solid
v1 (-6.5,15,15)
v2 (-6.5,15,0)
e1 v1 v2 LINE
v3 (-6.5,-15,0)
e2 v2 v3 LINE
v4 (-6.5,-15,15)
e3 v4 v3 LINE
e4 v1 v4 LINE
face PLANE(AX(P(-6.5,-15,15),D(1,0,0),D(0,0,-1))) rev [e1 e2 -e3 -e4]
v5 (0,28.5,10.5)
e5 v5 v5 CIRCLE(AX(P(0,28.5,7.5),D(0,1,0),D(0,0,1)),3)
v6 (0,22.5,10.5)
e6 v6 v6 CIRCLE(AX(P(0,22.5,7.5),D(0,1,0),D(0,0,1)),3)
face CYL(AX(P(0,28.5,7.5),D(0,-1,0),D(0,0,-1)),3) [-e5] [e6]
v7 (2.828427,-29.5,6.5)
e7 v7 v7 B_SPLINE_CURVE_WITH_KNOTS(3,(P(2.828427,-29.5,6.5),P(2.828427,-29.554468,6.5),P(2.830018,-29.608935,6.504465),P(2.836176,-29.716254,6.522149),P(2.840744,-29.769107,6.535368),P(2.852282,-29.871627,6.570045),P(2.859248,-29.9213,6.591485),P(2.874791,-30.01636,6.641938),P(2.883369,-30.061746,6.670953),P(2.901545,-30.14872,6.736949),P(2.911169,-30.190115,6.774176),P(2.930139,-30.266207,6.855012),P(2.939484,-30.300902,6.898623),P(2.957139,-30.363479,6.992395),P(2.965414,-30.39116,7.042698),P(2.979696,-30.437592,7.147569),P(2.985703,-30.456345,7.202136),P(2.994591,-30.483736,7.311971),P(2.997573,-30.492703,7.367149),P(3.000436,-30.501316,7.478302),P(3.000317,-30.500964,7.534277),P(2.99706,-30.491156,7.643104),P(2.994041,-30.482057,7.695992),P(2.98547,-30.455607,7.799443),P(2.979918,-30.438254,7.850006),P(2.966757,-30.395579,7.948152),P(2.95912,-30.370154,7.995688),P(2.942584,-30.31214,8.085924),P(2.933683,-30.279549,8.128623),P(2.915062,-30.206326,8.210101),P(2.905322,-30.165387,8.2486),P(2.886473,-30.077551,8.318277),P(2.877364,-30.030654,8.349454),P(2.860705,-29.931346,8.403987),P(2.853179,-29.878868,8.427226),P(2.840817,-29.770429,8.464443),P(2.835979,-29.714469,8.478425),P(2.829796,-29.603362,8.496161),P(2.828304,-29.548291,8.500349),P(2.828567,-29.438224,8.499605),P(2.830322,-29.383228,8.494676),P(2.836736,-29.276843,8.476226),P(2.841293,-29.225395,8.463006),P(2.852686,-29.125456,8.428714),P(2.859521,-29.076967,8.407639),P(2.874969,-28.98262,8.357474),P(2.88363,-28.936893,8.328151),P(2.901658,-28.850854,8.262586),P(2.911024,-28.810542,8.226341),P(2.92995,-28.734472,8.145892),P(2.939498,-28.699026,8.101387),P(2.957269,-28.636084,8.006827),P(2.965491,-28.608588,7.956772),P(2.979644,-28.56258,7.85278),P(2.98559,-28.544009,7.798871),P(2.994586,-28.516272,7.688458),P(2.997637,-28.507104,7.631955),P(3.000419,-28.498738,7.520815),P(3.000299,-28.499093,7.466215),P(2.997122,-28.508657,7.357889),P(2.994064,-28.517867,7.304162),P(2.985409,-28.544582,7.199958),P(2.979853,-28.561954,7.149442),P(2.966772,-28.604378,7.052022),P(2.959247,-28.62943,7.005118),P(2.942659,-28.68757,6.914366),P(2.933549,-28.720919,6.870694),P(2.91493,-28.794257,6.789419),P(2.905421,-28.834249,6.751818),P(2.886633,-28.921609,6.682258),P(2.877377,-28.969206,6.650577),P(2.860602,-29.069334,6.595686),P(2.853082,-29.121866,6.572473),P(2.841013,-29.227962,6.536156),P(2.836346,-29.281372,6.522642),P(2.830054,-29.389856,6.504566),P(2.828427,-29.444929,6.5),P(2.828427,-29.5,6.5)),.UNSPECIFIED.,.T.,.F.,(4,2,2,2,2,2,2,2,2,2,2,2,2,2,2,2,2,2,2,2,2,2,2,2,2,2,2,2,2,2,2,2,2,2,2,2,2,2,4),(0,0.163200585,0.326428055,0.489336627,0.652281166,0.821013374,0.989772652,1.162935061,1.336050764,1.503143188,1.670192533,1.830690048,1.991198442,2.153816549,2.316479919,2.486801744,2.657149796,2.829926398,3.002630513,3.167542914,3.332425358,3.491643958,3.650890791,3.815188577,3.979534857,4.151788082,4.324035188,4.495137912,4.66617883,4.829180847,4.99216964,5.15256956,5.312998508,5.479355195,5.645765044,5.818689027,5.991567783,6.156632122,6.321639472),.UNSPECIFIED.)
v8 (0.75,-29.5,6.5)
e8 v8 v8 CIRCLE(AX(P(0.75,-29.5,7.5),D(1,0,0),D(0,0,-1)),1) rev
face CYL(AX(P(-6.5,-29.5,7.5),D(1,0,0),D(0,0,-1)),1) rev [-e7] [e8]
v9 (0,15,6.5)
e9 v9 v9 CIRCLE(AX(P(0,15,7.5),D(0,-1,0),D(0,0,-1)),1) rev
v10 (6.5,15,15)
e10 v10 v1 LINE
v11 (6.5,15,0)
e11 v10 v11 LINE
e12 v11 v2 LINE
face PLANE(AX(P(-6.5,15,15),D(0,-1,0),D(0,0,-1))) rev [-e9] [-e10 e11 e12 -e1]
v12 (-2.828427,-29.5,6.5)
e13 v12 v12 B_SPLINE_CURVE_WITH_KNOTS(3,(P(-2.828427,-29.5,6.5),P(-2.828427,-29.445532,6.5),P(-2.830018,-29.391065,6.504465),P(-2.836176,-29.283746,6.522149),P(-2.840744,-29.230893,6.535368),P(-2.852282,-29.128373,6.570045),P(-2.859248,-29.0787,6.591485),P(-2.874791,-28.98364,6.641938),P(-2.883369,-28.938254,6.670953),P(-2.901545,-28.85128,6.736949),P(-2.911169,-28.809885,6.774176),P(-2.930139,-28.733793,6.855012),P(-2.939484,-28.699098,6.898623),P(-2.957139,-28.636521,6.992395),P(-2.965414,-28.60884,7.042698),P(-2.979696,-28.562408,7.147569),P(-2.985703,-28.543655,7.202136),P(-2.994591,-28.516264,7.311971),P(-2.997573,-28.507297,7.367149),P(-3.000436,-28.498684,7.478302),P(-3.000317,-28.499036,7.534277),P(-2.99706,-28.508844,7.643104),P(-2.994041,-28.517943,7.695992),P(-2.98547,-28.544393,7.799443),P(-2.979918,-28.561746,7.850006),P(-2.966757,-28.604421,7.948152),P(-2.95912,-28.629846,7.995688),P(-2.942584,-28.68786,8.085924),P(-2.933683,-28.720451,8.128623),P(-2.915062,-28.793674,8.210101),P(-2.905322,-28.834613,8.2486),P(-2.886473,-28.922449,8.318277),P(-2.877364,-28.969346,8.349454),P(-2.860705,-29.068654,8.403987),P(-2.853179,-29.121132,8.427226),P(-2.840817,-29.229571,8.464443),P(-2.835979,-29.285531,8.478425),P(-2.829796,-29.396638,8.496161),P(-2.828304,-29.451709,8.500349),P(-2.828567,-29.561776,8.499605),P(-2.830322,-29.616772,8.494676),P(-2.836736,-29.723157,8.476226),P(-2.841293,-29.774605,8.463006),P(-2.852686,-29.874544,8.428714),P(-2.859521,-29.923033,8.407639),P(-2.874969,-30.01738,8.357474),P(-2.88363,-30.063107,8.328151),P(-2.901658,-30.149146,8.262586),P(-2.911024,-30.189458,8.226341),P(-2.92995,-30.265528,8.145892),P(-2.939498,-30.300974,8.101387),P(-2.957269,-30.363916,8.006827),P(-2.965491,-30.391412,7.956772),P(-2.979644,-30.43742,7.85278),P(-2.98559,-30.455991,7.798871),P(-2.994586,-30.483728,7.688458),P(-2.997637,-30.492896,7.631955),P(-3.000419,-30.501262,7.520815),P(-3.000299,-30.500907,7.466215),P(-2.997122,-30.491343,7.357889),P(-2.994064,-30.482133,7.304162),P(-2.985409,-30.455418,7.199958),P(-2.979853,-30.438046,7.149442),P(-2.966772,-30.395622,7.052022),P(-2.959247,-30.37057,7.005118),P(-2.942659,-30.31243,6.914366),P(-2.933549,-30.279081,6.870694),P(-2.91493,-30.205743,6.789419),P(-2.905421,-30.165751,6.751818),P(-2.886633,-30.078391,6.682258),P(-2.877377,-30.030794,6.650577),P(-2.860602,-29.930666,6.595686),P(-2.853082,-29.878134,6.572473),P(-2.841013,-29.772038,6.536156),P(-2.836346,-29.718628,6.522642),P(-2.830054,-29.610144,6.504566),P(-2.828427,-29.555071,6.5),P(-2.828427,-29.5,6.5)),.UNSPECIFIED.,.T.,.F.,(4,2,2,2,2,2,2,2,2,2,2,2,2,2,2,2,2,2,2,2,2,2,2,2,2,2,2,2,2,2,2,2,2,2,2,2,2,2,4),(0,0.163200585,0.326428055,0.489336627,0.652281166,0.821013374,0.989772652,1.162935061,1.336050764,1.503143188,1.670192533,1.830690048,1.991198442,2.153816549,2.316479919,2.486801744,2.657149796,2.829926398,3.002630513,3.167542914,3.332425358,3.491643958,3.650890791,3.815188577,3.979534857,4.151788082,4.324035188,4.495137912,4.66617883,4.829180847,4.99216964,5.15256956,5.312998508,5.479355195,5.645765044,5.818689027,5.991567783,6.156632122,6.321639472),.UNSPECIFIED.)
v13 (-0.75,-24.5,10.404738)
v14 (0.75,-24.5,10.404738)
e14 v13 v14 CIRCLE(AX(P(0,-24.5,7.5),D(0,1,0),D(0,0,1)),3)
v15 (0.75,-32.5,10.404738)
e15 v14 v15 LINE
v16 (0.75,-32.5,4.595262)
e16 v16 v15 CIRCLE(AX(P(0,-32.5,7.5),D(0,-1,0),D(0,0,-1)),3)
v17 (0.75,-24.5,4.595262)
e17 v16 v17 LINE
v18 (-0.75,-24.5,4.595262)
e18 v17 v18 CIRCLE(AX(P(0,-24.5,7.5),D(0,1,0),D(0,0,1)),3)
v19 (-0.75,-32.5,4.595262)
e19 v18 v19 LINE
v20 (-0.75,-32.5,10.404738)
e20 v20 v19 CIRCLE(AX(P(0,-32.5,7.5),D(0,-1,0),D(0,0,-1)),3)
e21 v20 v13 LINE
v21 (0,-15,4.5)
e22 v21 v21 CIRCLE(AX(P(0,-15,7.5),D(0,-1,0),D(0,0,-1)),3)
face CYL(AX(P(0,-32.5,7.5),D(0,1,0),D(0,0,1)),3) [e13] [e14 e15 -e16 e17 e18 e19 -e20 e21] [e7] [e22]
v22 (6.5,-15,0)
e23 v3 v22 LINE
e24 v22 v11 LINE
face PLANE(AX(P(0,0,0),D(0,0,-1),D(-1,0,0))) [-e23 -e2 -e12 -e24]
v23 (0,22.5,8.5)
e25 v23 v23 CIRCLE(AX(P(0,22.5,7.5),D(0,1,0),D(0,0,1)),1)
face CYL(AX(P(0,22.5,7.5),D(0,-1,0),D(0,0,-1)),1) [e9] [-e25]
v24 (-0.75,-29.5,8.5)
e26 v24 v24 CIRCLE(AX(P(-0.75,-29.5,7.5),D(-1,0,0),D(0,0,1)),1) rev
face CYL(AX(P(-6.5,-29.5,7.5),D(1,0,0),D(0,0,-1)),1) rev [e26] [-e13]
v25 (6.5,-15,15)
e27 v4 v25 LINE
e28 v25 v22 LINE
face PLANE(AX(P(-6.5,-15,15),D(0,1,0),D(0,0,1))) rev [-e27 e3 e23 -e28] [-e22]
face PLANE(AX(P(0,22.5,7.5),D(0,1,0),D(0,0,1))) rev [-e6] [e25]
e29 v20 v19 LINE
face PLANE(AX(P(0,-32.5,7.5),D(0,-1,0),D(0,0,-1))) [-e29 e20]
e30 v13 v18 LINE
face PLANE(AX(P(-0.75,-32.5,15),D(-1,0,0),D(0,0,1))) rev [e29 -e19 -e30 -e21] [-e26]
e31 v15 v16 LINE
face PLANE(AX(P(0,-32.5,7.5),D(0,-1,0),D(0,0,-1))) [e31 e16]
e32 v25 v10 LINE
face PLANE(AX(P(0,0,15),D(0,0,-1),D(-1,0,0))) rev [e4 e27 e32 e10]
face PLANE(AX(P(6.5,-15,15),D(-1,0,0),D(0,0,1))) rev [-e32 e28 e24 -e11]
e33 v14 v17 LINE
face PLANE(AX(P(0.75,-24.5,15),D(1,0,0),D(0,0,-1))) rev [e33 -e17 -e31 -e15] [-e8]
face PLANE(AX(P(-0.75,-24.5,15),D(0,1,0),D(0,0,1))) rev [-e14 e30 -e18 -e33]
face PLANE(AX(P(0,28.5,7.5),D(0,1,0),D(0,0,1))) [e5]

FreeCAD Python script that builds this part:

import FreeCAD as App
import Part
import Sketcher

V = App.Vector

doc = App.newDocument("Part")
body = doc.addObject("PartDesign::Body", "Body")

# Sketch on XY plane
sketch1 = body.newObject("Sketcher::SketchObject", "Sketch")
sketch1.AttachmentSupport = (doc.getObject("XY_Plane"), [""])
sketch1.MapMode = "FlatFace"
sketch1.addGeometry(Part.LineSegment(V(-6, 15, 0), V(-6, -15, 0)), False)
sketch1.addGeometry(Part.LineSegment(V(-6, -15, 0), V(6, -15, 0)), False)
sketch1.addGeometry(Part.LineSegment(V(6, -15, 0), V(6, 15, 0)), False)
sketch1.addGeometry(Part.LineSegment(V(6, 15, 0), V(-6, 15, 0)), False)
sketch1.addConstraint(Sketcher.Constraint("Coincident", 0, 2, 1, 1))
sketch1.addConstraint(Sketcher.Constraint("Coincident", 1, 2, 2, 1))
sketch1.addConstraint(Sketcher.Constraint("Coincident", 2, 2, 3, 1))
sketch1.addConstraint(Sketcher.Constraint("Coincident", 3, 2, 0, 1))
sketch1.addConstraint(Sketcher.Constraint("Vertical", 0))
sketch1.addConstraint(Sketcher.Constraint("Horizontal", 1))
sketch1.addConstraint(Sketcher.Constraint("Vertical", 2))
sketch1.addConstraint(Sketcher.Constraint("Horizontal", 3))
sketch1.addConstraint(Sketcher.Constraint("Symmetric", 0, 2, 2, 2, -1, 1))
sketch1.addConstraint(Sketcher.Constraint("DistanceX", 1, 1, 1, 2, 13.0))
sketch1.addConstraint(Sketcher.Constraint("DistanceY", 0, 2, 0, 1, 30.0))
pad1 = body.newObject("PartDesign::Pad", "Pad")
pad1.Profile = sketch1
pad1.Length = 15

# Sketch on XZ plane
sketch2 = body.newObject("Sketcher::SketchObject", "Sketch001")
sketch2.AttachmentSupport = (doc.getObject("XZ_Plane"), [""])
sketch2.MapMode = "FlatFace"
sketch2.AttachmentOffset = App.Placement(V(0, 0, -15), App.Rotation())
sketch2.addGeometry(Part.Circle(V(0, 7.5, 0), V(0, 0, 1), 1), False)
sketch2.addConstraint(Sketcher.Constraint("PointOnObject", 0, 3, -2))
sketch2.addConstraint(Sketcher.Constraint("Diameter", 0, 2.0))
sketch2.addConstraint(Sketcher.Constraint("DistanceY", -1, 1, 0, 3, 7.5))
pad2 = body.newObject("PartDesign::Pad", "Pad001")
pad2.Profile = sketch2
pad2.Length = 7.5
pad2.Reversed = True

# Sketch on XZ plane
sketch3 = body.newObject("Sketcher::SketchObject", "Sketch002")
sketch3.AttachmentSupport = (doc.getObject("XZ_Plane"), [""])
sketch3.MapMode = "FlatFace"
sketch3.AttachmentOffset = App.Placement(V(0, 0, -22.5), App.Rotation())
sketch3.addGeometry(Part.Circle(V(0, 7.5, 0), V(0, 0, 1), 3), False)
sketch3.addConstraint(Sketcher.Constraint("PointOnObject", 0, 3, -2))
sketch3.addConstraint(Sketcher.Constraint("Diameter", 0, 6.0))
sketch3.addConstraint(Sketcher.Constraint("DistanceY", -1, 1, 0, 3, 7.5))
pad3 = body.newObject("PartDesign::Pad", "Pad002")
pad3.Profile = sketch3
pad3.Length = 6
pad3.Reversed = True

# Sketch on XZ plane
sketch4 = body.newObject("Sketcher::SketchObject", "Sketch003")
sketch4.AttachmentSupport = (doc.getObject("XZ_Plane"), [""])
sketch4.MapMode = "FlatFace"
sketch4.AttachmentOffset = App.Placement(V(0, 0, 32.5), App.Rotation())
sketch4.addGeometry(Part.Circle(V(0, 7.5, 0), V(0, 0, 1), 3), False)
sketch4.addConstraint(Sketcher.Constraint("PointOnObject", 0, 3, -2))
sketch4.addConstraint(Sketcher.Constraint("Diameter", 0, 6.0))
sketch4.addConstraint(Sketcher.Constraint("DistanceY", -1, 1, 0, 3, 7.5))
pad4 = body.newObject("PartDesign::Pad", "Pad003")
pad4.Profile = sketch4
pad4.Length = 17.5
pad4.Reversed = True

# Sketch on YZ plane
sketch5 = body.newObject("Sketcher::SketchObject", "Sketch004")
sketch5.AttachmentSupport = (doc.getObject("YZ_Plane"), [""])
sketch5.MapMode = "FlatFace"
sketch5.AttachmentOffset = App.Placement(V(0, 0, 3), App.Rotation())
sketch5.addGeometry(Part.Circle(V(-29.5, 7.5, 0), V(0, 0, 1), 1), False)
sketch5.addConstraint(Sketcher.Constraint("Diameter", 0, 2.0))
sketch5.addConstraint(Sketcher.Constraint("DistanceX", 0, 3, -1, 1, 29.5))
sketch5.addConstraint(Sketcher.Constraint("DistanceY", -1, 1, 0, 3, 7.5))
pocket1 = body.newObject("PartDesign::Pocket", "Pocket")
pocket1.Profile = sketch5
pocket1.Type = "ThroughAll"

# Sketch on XY plane
sketch6 = body.newObject("Sketcher::SketchObject", "Sketch005")
sketch6.AttachmentSupport = (doc.getObject("XY_Plane"), [""])
sketch6.MapMode = "FlatFace"
sketch6.AttachmentOffset = App.Placement(V(0, 0, 4.5), App.Rotation())
sketch6.addGeometry(Part.LineSegment(V(0.8, -24.5, 0), V(0.8, -32.5, 0)), False)
sketch6.addGeometry(Part.LineSegment(V(0.8, -32.5, 0), V(-0.8, -32.5, 0)), False)
sketch6.addGeometry(Part.LineSegment(V(-0.8, -32.5, 0), V(-0.8, -24.5, 0)), False)
sketch6.addGeometry(Part.LineSegment(V(-0.8, -24.5, 0), V(0.8, -24.5, 0)), False)
sketch6.addConstraint(Sketcher.Constraint("Coincident", 0, 2, 1, 1))
sketch6.addConstraint(Sketcher.Constraint("Coincident", 1, 2, 2, 1))
sketch6.addConstraint(Sketcher.Constraint("Coincident", 2, 2, 3, 1))
sketch6.addConstraint(Sketcher.Constraint("Coincident", 3, 2, 0, 1))
sketch6.addConstraint(Sketcher.Constraint("Vertical", 0))
sketch6.addConstraint(Sketcher.Constraint("Horizontal", 1))
sketch6.addConstraint(Sketcher.Constraint("Vertical", 2))
sketch6.addConstraint(Sketcher.Constraint("Horizontal", 3))
sketch6.addConstraint(Sketcher.Constraint("DistanceY", 0, 2, 0, 1, 8.0))
sketch6.addConstraint(Sketcher.Constraint("DistanceX", 1, 2, 1, 1, 1.5))
sketch6.addConstraint(Sketcher.Constraint("DistanceY", 0, 2, -1, 1, 32.5))
sketch6.addConstraint(Sketcher.Constraint("DistanceX", -1, 1, 0, 2, 0.75))
pocket2 = body.newObject("PartDesign::Pocket", "Pocket001")
pocket2.Profile = sketch6
pocket2.Type = "ThroughAll"
pocket2.Reversed = True

doc.recompute()
